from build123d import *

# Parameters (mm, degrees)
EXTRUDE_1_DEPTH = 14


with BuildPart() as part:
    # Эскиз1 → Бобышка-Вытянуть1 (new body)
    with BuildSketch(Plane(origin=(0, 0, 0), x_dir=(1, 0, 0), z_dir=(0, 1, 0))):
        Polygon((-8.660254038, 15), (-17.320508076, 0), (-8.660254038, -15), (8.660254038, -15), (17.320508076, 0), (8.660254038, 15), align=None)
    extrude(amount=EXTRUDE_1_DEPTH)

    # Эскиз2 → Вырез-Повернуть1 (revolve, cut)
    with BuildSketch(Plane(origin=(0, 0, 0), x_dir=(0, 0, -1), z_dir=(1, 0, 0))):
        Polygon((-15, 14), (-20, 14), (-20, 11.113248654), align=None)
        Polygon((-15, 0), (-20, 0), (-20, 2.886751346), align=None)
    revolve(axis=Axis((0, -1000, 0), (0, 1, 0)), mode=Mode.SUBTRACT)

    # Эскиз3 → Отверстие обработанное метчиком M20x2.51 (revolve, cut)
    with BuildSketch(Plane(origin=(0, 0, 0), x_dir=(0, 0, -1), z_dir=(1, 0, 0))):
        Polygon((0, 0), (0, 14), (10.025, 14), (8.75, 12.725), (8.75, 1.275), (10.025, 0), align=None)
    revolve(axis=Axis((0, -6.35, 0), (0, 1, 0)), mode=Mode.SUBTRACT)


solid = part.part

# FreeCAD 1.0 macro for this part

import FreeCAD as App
import Part
import Sketcher
from FreeCAD import Vector
Q = App.Units.Quantity

doc = App.newDocument("Part")
body = doc.addObject("PartDesign::Body", "Body")

# Sketch on XZ plane
sketch1 = body.newObject("Sketcher::SketchObject", "Sketch")
sketch1.AttachmentSupport = (doc.getObject("XZ_Plane"), [""])
sketch1.MapMode = "FlatFace"
sketch1.addGeometry([
    Part.LineSegment(Vector(-9, -15, 0), Vector(-17, 0, 0)),  # 0
    Part.LineSegment(Vector(-17, 0, 0), Vector(-9, 15, 0)),  # 1
    Part.LineSegment(Vector(-9, 15, 0), Vector(9, 15, 0)),  # 2
    Part.LineSegment(Vector(9, 15, 0), Vector(17, 0, 0)),  # 3
    Part.LineSegment(Vector(17, 0, 0), Vector(9, -15, 0)),  # 4
    Part.LineSegment(Vector(9, -15, 0), Vector(-9, -15, 0)),  # 5
], False)
sketch1.addConstraint([
    Sketcher.Constraint("Coincident", 0, 2, 1, 1),
    Sketcher.Constraint("Coincident", 1, 2, 2, 1),
    Sketcher.Constraint("Coincident", 2, 2, 3, 1),
    Sketcher.Constraint("Coincident", 3, 2, 4, 1),
    Sketcher.Constraint("Coincident", 4, 2, 5, 1),
    Sketcher.Constraint("Coincident", 5, 2, 0, 1),
    Sketcher.Constraint("Horizontal", 2),
    Sketcher.Constraint("Horizontal", 5),
    Sketcher.Constraint("Symmetric", 0, 2, 3, 2, -1, 1),
    Sketcher.Constraint("Symmetric", 1, 2, 4, 2, -1, 1),
    Sketcher.Constraint("PointOnObject", 0, 2, -1),
    Sketcher.Constraint("Parallel", 0, 3),
    Sketcher.Constraint("Vertical", 2, 2, 4, 2),
    Sketcher.Constraint("Angle", 0, Q("120 deg")),
    Sketcher.Constraint("DistanceY", -1, 1, 1, 2, Q("15 mm")),
    Sketcher.Constraint("DistanceX", 2, 1, 2, 2, Q("17.320508 mm")),
])
pad1 = body.newObject("PartDesign::Pad", "Pad")
pad1.Profile = sketch1
pad1.Length = 14
pad1.Reversed = True

# Sketch on YZ plane
sketch2 = body.newObject("Sketcher::SketchObject", "Sketch001")
sketch2.AttachmentSupport = (doc.getObject("YZ_Plane"), [""])
sketch2.MapMode = "FlatFace"
sketch2.addGeometry([
    Part.LineSegment(Vector(14, 15, 0), Vector(14, 20, 0)),  # 0
    Part.LineSegment(Vector(14, 20, 0), Vector(11.1, 20, 0)),  # 1
    Part.LineSegment(Vector(11.1, 20, 0), Vector(14, 15, 0)),  # 2
    Part.LineSegment(Vector(0, 20, 0), Vector(0, 15, 0)),  # 3
    Part.LineSegment(Vector(0, 15, 0), Vector(2.9, 20, 0)),  # 4
    Part.LineSegment(Vector(2.9, 20, 0), Vector(0, 20, 0)),  # 5
], False)
sketch2.addConstraint([
    Sketcher.Constraint("Coincident", 0, 2, 1, 1),
    Sketcher.Constraint("Coincident", 1, 2, 2, 1),
    Sketcher.Constraint("Coincident", 2, 2, 0, 1),
    Sketcher.Constraint("Coincident", 3, 2, 4, 1),
    Sketcher.Constraint("Coincident", 4, 2, 5, 1),
    Sketcher.Constraint("Coincident", 5, 2, 3, 1),
    Sketcher.Constraint("Vertical", 0),
    Sketcher.Constraint("Horizontal", 1),
    Sketcher.Constraint("Vertical", 3),
    Sketcher.Constraint("Horizontal", 5),
    Sketcher.Constraint("PointOnObject", 3, 2, -2),
    Sketcher.Constraint("Horizontal", 2, 2, 3, 2),
    Sketcher.Constraint("Horizontal", 1, 2, 4, 2),
    Sketcher.Constraint("Equal", 1, 5),
    Sketcher.Constraint("DistanceY", 0, 1, 0, 2, Q("5 mm")),
    Sketcher.Constraint("Angle", 2, Q("-60 deg")),
    Sketcher.Constraint("DistanceX", -1, 1, 0, 2, Q("14 mm")),
    Sketcher.Constraint("DistanceY", -1, 1, 0, 2, Q("20 mm")),
])
groove = body.newObject("PartDesign::Groove", "Groove")
groove.Profile = sketch2
groove.ReferenceAxis = (sketch2, ["H_Axis"])
groove.Angle = 360

# Sketch on YZ plane
sketch3 = body.newObject("Sketcher::SketchObject", "Sketch002")
sketch3.AttachmentSupport = (doc.getObject("YZ_Plane"), [""])
sketch3.MapMode = "FlatFace"
sketch3.addGeometry([
    Part.LineSegment(Vector(14, 0, 0), Vector(0, 0, 0)),  # 0
    Part.LineSegment(Vector(0, 0, 0), Vector(0, -10, 0)),  # 1
    Part.LineSegment(Vector(0, -10, 0), Vector(1.3, -8.8, 0)),  # 2
    Part.LineSegment(Vector(1.3, -8.8, 0), Vector(12.7, -8.8, 0)),  # 3
    Part.LineSegment(Vector(12.7, -8.8, 0), Vector(14, -10, 0)),  # 4
    Part.LineSegment(Vector(14, -10, 0), Vector(14, 0, 0)),  # 5
], False)
sketch3.addConstraint([
    Sketcher.Constraint("Coincident", 0, 2, 1, 1),
    Sketcher.Constraint("Coincident", 1, 2, 2, 1),
    Sketcher.Constraint("Coincident", 2, 2, 3, 1),
    Sketcher.Constraint("Coincident", 3, 2, 4, 1),
    Sketcher.Constraint("Coincident", 4, 2, 5, 1),
    Sketcher.Constraint("Coincident", 5, 2, 0, 1),
    Sketcher.Constraint("Horizontal", 0),
    Sketcher.Constraint("Vertical", 1),
    Sketcher.Constraint("Horizontal", 3),
    Sketcher.Constraint("Vertical", 5),
    Sketcher.Constraint("Coincident", 0, 2, -1, 1),
    Sketcher.Constraint("Perpendicular", 2, 4),
    Sketcher.Constraint("Horizontal", 1, 2, 4, 2),
    Sketcher.Constraint("Equal", 2, 4),
    Sketcher.Constraint("DistanceX", 0, 2, 0, 1, Q("14 mm")),
    Sketcher.Constraint("DistanceX", 3, 1, 3, 2, Q("11.45 mm")),
    Sketcher.Constraint("DistanceY", 1, 2, 1, 1, Q("10.025 mm")),
])
groove2 = body.newObject("PartDesign::Groove", "Groove001")
groove2.Profile = sketch3
groove2.ReferenceAxis = (sketch3, ["H_Axis"])
groove2.Angle = 360

doc.recompute()
